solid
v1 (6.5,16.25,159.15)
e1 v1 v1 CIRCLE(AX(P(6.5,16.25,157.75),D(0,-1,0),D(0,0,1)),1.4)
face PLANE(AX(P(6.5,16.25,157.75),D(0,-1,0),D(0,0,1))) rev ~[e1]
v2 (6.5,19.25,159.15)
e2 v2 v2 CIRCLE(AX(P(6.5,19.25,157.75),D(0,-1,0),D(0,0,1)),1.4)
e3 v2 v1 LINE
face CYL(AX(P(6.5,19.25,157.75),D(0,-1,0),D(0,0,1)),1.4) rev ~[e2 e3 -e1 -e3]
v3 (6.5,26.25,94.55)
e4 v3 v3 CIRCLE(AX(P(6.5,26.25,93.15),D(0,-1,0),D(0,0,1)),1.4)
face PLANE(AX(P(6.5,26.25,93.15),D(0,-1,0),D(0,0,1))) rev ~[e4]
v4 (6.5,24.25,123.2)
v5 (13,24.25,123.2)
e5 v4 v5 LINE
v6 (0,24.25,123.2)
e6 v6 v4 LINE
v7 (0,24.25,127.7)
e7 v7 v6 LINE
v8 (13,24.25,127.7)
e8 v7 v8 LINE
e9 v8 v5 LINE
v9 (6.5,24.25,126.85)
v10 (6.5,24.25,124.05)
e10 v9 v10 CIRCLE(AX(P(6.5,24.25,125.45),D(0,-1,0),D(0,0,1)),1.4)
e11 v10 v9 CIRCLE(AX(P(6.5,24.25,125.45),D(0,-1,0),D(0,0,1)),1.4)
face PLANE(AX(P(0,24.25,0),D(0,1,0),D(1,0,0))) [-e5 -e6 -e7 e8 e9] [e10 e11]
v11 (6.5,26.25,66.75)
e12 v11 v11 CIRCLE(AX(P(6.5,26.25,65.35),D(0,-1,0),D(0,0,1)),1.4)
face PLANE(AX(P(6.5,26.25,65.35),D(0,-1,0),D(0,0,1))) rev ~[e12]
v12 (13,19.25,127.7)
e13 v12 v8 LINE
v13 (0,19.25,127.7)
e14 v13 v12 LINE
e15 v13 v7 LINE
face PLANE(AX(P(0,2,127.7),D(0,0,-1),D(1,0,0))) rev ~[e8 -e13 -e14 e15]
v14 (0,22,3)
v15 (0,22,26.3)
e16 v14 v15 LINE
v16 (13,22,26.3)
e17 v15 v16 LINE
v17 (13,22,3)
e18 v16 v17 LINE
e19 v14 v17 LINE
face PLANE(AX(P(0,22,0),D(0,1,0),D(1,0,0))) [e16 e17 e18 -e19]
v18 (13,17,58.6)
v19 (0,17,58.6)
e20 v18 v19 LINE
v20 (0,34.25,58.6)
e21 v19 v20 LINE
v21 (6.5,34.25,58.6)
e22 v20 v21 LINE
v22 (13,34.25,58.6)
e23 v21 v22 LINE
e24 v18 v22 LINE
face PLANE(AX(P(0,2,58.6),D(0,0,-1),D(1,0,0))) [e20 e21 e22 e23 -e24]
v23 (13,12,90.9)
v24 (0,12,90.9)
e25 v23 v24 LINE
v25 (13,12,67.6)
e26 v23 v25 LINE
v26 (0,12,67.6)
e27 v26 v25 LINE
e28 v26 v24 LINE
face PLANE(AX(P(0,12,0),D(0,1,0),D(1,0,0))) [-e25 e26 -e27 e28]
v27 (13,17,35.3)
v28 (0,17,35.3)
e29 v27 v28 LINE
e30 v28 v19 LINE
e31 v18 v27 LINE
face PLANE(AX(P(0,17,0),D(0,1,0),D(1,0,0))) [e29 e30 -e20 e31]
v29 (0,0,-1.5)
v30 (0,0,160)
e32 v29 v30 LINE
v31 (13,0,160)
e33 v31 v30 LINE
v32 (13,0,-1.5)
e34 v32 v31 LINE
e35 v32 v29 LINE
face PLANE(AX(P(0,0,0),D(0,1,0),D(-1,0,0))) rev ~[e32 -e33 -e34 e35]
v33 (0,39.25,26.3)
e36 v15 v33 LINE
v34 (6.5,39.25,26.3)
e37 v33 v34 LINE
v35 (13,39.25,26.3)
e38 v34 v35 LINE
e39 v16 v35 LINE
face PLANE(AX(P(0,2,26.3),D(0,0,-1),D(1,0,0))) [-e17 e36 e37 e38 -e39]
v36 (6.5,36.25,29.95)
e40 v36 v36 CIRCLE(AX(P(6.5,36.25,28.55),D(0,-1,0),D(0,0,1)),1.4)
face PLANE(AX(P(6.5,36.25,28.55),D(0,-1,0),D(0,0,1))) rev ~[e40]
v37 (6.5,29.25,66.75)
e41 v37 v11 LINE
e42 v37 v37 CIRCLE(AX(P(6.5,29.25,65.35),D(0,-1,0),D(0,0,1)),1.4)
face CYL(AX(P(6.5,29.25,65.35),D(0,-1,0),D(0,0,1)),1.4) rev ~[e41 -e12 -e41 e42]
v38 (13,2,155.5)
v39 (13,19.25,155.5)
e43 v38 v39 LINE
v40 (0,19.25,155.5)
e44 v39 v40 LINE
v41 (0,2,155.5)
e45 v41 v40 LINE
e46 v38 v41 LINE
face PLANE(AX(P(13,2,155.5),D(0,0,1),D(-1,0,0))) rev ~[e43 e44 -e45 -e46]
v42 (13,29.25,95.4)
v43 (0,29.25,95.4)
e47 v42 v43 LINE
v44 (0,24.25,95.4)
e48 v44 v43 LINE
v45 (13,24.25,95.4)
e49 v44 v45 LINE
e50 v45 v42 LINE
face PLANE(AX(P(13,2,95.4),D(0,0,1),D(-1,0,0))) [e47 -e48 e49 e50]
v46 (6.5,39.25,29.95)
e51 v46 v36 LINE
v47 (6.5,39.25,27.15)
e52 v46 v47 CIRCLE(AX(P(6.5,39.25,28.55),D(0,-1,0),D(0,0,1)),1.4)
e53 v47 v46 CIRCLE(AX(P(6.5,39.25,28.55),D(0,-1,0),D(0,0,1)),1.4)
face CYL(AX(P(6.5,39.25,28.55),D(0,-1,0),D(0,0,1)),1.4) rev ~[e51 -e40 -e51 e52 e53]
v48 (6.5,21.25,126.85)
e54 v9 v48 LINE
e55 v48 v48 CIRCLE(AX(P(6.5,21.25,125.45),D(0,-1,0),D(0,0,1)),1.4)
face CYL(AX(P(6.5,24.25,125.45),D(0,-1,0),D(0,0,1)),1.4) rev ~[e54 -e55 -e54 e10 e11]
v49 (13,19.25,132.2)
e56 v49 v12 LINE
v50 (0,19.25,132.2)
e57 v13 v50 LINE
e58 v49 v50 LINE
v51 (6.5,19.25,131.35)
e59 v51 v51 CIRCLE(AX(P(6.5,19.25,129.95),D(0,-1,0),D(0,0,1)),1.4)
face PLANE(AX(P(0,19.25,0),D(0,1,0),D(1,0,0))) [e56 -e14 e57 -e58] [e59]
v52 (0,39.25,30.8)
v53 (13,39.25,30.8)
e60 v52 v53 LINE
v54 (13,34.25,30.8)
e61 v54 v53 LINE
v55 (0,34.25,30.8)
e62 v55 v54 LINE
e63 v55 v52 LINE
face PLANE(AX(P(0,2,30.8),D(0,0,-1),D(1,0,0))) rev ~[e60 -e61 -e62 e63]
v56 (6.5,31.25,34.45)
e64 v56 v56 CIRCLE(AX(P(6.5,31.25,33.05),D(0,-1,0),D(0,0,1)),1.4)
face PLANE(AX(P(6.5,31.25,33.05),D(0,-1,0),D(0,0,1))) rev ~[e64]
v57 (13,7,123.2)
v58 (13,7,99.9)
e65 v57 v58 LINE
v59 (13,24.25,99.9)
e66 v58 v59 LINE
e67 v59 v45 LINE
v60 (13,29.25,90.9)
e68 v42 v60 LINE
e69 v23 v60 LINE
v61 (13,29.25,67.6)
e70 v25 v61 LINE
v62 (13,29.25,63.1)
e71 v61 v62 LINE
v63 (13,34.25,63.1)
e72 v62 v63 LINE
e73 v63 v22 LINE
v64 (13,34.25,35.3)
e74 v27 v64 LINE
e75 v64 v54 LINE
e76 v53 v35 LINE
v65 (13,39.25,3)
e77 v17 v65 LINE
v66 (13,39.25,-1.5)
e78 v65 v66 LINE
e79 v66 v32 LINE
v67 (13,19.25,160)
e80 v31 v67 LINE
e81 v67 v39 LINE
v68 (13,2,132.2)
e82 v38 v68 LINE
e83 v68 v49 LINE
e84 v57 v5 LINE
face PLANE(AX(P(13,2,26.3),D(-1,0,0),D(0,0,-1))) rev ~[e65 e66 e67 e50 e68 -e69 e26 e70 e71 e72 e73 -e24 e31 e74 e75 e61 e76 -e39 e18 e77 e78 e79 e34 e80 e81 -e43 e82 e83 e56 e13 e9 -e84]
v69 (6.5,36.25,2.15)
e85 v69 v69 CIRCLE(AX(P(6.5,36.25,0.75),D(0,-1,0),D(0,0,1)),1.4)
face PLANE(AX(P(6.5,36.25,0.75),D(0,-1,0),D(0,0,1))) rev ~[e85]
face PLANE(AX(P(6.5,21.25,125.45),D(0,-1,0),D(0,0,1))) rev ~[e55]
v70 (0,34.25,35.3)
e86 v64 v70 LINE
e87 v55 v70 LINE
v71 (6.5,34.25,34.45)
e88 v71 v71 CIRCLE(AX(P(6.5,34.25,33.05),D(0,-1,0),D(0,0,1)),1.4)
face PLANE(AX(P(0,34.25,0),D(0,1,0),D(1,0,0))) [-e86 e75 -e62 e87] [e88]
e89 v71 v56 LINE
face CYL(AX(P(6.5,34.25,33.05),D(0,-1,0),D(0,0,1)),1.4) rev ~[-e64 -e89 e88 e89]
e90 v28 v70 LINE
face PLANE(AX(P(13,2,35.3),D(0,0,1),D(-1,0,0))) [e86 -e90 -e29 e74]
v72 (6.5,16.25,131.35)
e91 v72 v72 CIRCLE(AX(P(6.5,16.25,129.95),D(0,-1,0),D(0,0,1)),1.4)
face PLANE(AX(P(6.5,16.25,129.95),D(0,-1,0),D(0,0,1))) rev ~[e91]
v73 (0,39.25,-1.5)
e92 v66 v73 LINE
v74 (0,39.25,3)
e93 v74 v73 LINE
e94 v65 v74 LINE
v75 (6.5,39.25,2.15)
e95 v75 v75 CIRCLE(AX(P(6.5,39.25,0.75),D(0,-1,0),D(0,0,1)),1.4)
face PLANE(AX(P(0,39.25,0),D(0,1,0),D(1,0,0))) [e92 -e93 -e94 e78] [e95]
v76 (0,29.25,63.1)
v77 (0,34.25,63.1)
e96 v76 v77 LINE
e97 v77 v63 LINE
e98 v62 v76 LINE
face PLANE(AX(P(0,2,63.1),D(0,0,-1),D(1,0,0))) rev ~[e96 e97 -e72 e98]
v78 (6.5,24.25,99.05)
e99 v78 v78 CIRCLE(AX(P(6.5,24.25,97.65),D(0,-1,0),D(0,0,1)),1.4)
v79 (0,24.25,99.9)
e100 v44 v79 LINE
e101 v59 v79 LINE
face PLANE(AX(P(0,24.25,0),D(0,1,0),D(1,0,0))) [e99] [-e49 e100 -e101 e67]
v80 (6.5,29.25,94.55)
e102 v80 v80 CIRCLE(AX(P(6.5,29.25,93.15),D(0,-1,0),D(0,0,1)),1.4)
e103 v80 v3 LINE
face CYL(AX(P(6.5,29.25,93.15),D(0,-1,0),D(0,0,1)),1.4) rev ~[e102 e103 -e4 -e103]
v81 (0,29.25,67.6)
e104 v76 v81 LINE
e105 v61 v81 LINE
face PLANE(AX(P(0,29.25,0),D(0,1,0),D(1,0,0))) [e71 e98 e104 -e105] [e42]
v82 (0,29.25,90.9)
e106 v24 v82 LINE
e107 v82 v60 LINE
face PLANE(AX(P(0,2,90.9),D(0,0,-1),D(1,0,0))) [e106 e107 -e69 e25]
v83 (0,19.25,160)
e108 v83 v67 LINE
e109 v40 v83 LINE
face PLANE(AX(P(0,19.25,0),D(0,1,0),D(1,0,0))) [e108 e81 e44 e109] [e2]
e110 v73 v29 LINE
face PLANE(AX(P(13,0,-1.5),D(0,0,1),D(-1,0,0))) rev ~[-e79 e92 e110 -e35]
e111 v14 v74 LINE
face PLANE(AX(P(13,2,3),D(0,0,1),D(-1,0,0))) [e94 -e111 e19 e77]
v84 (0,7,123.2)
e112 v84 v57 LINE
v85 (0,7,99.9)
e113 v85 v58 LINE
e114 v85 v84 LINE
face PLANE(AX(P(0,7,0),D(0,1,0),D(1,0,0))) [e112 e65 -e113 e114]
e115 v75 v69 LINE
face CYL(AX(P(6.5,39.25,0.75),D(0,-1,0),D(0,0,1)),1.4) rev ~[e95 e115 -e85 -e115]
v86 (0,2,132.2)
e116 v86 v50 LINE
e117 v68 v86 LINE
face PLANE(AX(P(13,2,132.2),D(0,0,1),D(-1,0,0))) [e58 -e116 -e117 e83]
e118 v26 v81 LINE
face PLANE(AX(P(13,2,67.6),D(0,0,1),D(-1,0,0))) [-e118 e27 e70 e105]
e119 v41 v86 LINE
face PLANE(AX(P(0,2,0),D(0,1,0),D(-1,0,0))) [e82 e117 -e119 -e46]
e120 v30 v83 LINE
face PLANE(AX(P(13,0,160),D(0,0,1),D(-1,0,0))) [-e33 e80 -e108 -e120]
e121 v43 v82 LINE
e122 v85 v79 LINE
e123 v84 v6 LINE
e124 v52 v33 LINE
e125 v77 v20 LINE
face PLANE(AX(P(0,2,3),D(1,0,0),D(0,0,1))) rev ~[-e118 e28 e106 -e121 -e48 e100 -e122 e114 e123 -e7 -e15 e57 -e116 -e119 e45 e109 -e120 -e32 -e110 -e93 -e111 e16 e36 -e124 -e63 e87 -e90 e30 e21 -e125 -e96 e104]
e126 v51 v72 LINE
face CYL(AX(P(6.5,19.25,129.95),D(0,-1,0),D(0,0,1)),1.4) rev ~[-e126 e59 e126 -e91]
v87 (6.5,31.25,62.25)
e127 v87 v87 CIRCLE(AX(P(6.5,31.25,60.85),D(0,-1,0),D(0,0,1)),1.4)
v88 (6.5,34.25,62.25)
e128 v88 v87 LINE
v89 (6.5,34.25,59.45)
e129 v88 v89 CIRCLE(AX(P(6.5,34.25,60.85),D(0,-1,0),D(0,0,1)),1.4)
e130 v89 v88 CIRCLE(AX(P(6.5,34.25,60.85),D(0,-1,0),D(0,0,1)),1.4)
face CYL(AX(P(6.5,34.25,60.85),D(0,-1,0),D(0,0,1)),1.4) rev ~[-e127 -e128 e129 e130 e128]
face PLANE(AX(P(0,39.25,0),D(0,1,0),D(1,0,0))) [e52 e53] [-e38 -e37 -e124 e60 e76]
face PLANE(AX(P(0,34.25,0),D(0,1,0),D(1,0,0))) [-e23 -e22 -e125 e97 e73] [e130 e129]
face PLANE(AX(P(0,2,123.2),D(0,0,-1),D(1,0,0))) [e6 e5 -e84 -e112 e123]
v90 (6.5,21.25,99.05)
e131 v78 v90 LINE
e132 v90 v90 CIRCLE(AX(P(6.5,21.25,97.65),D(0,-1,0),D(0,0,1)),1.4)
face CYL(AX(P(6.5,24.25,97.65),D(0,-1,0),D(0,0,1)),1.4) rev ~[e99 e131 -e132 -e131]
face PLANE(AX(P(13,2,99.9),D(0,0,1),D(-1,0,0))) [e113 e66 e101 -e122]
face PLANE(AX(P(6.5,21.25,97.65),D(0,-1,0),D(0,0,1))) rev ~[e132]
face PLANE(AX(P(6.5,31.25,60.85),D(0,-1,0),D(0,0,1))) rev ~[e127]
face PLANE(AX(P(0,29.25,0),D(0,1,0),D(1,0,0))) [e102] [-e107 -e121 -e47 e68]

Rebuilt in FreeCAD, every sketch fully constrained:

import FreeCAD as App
import Part
import Sketcher
from FreeCAD import Vector
Q = App.Units.Quantity


def add_polygon(sketch, points):
    """Adds a closed chain of lines whose ends are joined by coincident constraints."""
    first, n = sketch.GeometryCount, len(points)
    for a, b in zip(points, points[1:] + points[:1]):
        sketch.addGeometry(Part.LineSegment(App.Vector(*a, 0), App.Vector(*b, 0)), False)
    for i in range(n):
        sketch.addConstraint(Sketcher.Constraint("Coincident", first + i, 2, first + (i + 1) % n, 1))

doc = App.newDocument("Part")
params = doc.addObject("Spreadsheet::Sheet", "Params")
for row, (alias, value) in enumerate([
    ("sketch1_width", "13 mm"),
    ("pad1_length", "2 mm"),
    ("sketch2_width", "13 mm"),
    ("sketch2_height", "4.5 mm"),
    ("pad2_length", "17.25 mm"),
    ("sketch3_height", "4.5 mm"),
    ("sketch3_width", "13 mm"),
    ("pad3_length", "22.25 mm"),
    ("sketch4_height", "4.5 mm"),
    ("sketch4_width", "13 mm"),
    ("pad4_length", "27.25 mm"),
    ("sketch5_height", "4.5 mm"),
    ("sketch5_width", "13 mm"),
    ("pad5_length", "32.25 mm"),
    ("sketch6_height", "4.5 mm"),
    ("sketch6_width", "13 mm"),
    ("pad6_length", "37.25 mm"),
    ("sketch7_width", "13 mm"),
    ("sketch7_height", "23.3 mm"),
    ("pad7_length", "5 mm"),
    ("sketch8_width", "13 mm"),
    ("sketch8_height", "23.3 mm"),
    ("pad8_length", "10 mm"),
    ("sketch9_width", "13 mm"),
    ("sketch9_height", "23.3 mm"),
    ("pad9_length", "15 mm"),
    ("sketch10_width", "13 mm"),
    ("sketch10_height", "23.3 mm"),
    ("pad10_length", "20 mm"),
    ("sketch11_diameter", "2.8 mm"),
    ("hole_diameter", "2.8 mm"),
    ("hole_depth", "3 mm"),
    ("sketch12_diameter", "2.8 mm"),
    ("hole2_diameter", "2.8 mm"),
    ("hole2_depth", "3 mm"),
    ("sketch13_diameter", "2.8 mm"),
    ("hole3_diameter", "2.8 mm"),
    ("hole3_depth", "3 mm"),
    ("sketch14_diameter", "2.8 mm"),
    ("hole4_diameter", "2.8 mm"),
    ("hole4_depth", "3 mm"),
    ("sketch15_diameter", "2.8 mm"),
    ("hole5_diameter", "2.8 mm"),
    ("hole5_depth", "3 mm"),
], start=1):
    params.set(f"A{row}", alias)
    params.set(f"B{row}", "=" + value)
    params.setAlias(f"B{row}", alias)

body = doc.addObject("PartDesign::Body", "Body")

# Sketch on XZ plane
sketch1 = doc.addObject("Sketcher::SketchObject", "Sketch")
body.addObject(sketch1)
sketch1.AttachmentSupport = (doc.XZ_Plane, [""])
sketch1.MapMode = "FlatFace"
add_polygon(sketch1, [(0, -1.5), (0, 160), (13, 160), (13, -1.5)])  # lines 0-3
sketch1.addConstraint([
    Sketcher.Constraint("Vertical", 0),
    Sketcher.Constraint("Horizontal", 1),
    Sketcher.Constraint("Vertical", 2),
    Sketcher.Constraint("Horizontal", 3),
    Sketcher.Constraint("PointOnObject", 0, 2, -2),
    Sketcher.Constraint("DistanceX", 1, 1, 1, 2, Q("13 mm")),
    Sketcher.Constraint("DistanceY", -1, 1, 0, 2, Q("160 mm")),
    Sketcher.Constraint("DistanceY", 2, 2, -1, 1, Q("1.5 mm")),
])
sketch1.setExpression("Constraints[9]", "Params.sketch1_width")
pad1 = doc.addObject("PartDesign::Pad", "Pad")
body.addObject(pad1)
pad1.Profile = sketch1
pad1.setExpression("Length", "Params.pad1_length")
pad1.Reversed = True

# Sketch on XZ plane
sketch2 = doc.addObject("Sketcher::SketchObject", "Sketch001")
body.addObject(sketch2)
sketch2.AttachmentSupport = (doc.XZ_Plane, [""])
sketch2.MapMode = "FlatFace"
sketch2.AttachmentOffset = App.Placement(Vector(0, 0, -2), App.Rotation())
add_polygon(sketch2, [(13, 127.7), (0, 127.7), (0, 132.2), (13, 132.2)])  # lines 0-3
add_polygon(sketch2, [(13, 155.5), (0, 155.5), (0, 160), (13, 160)])  # lines 4-7
sketch2.addConstraint([
    Sketcher.Constraint("Horizontal", 0),
    Sketcher.Constraint("Vertical", 1),
    Sketcher.Constraint("Horizontal", 2),
    Sketcher.Constraint("Vertical", 3),
    Sketcher.Constraint("Horizontal", 4),
    Sketcher.Constraint("Vertical", 5),
    Sketcher.Constraint("Horizontal", 6),
    Sketcher.Constraint("Vertical", 7),
    Sketcher.Constraint("PointOnObject", 0, 2, -2),
    Sketcher.Constraint("PointOnObject", 4, 2, -2),
    Sketcher.Constraint("Vertical", 3, 2, 6, 2),
    Sketcher.Constraint("Equal", 3, 5),
    Sketcher.Constraint("DistanceX", 0, 2, 0, 1, Q("13 mm")),
    Sketcher.Constraint("DistanceY", 1, 1, 1, 2, Q("4.5 mm")),
    Sketcher.Constraint("DistanceY", -1, 1, 5, 2, Q("160 mm")),
    Sketcher.Constraint("DistanceY", -1, 1, 0, 2, Q("127.7 mm")),
])
sketch2.setExpression("Constraints[20]", "Params.sketch2_width")
sketch2.setExpression("Constraints[21]", "Params.sketch2_height")
pad2 = doc.addObject("PartDesign::Pad", "Pad001")
body.addObject(pad2)
pad2.Profile = sketch2
pad2.setExpression("Length", "Params.pad2_length")
pad2.Reversed = True

# Sketch on XZ plane
sketch3 = doc.addObject("Sketcher::SketchObject", "Sketch002")
body.addObject(sketch3)
sketch3.AttachmentSupport = (doc.XZ_Plane, [""])
sketch3.MapMode = "FlatFace"
sketch3.AttachmentOffset = App.Placement(Vector(0, 0, -2), App.Rotation())
add_polygon(sketch3, [(0, 123.2), (0, 127.7), (13, 127.7), (13, 123.2), (6.5, 123.2)])  # lines 0-4
add_polygon(sketch3, [(0, 95.4), (0, 99.9), (13, 99.9), (13, 95.4)])  # lines 5-8
sketch3.addConstraint([
    Sketcher.Constraint("Vertical", 0),
    Sketcher.Constraint("Horizontal", 1),
    Sketcher.Constraint("Vertical", 2),
    Sketcher.Constraint("Horizontal", 3),
    Sketcher.Constraint("Horizontal", 4),
    Sketcher.Constraint("Vertical", 5),
    Sketcher.Constraint("Horizontal", 6),
    Sketcher.Constraint("Vertical", 7),
    Sketcher.Constraint("Horizontal", 8),
    Sketcher.Constraint("PointOnObject", 0, 2, -2),
    Sketcher.Constraint("PointOnObject", 5, 2, -2),
    Sketcher.Constraint("Vertical", 2, 2, 6, 2),
    Sketcher.Constraint("Equal", 3, 4),
    Sketcher.Constraint("Equal", 2, 5),
    Sketcher.Constraint("DistanceY", 0, 1, 0, 2, Q("4.5 mm")),
    Sketcher.Constraint("DistanceX", 1, 1, 1, 2, Q("13 mm")),
    Sketcher.Constraint("DistanceY", -1, 1, 0, 2, Q("127.7 mm")),
    Sketcher.Constraint("DistanceY", -1, 1, 5, 2, Q("99.9 mm")),
])
sketch3.setExpression("Constraints[23]", "Params.sketch3_height")
sketch3.setExpression("Constraints[24]", "Params.sketch3_width")
pad3 = doc.addObject("PartDesign::Pad", "Pad002")
body.addObject(pad3)
pad3.Profile = sketch3
pad3.setExpression("Length", "Params.pad3_length")
pad3.Reversed = True

# Sketch on XZ plane
sketch4 = doc.addObject("Sketcher::SketchObject", "Sketch003")
body.addObject(sketch4)
sketch4.AttachmentSupport = (doc.XZ_Plane, [""])
sketch4.MapMode = "FlatFace"
sketch4.AttachmentOffset = App.Placement(Vector(0, 0, -2), App.Rotation())
add_polygon(sketch4, [(0, 95.4), (13, 95.4), (13, 90.9), (0, 90.9)])  # lines 0-3
add_polygon(sketch4, [(0, 67.6), (13, 67.6), (13, 63.1), (0, 63.1)])  # lines 4-7
sketch4.addConstraint([
    Sketcher.Constraint("Horizontal", 0),
    Sketcher.Constraint("Vertical", 1),
    Sketcher.Constraint("Horizontal", 2),
    Sketcher.Constraint("Vertical", 3),
    Sketcher.Constraint("Horizontal", 4),
    Sketcher.Constraint("Vertical", 5),
    Sketcher.Constraint("Horizontal", 6),
    Sketcher.Constraint("Vertical", 7),
    Sketcher.Constraint("PointOnObject", 2, 2, -2),
    Sketcher.Constraint("PointOnObject", 6, 2, -2),
    Sketcher.Constraint("Vertical", 1, 2, 4, 2),
    Sketcher.Constraint("Equal", 3, 5),
    Sketcher.Constraint("DistanceY", 1, 2, 1, 1, Q("4.5 mm")),
    Sketcher.Constraint("DistanceX", 0, 1, 0, 2, Q("13 mm")),
    Sketcher.Constraint("DistanceY", -1, 1, 0, 2, Q("95.4 mm")),
    Sketcher.Constraint("DistanceY", -1, 1, 4, 2, Q("67.6 mm")),
])
sketch4.setExpression("Constraints[20]", "Params.sketch4_height")
sketch4.setExpression("Constraints[21]", "Params.sketch4_width")
pad4 = doc.addObject("PartDesign::Pad", "Pad003")
body.addObject(pad4)
pad4.Profile = sketch4
pad4.setExpression("Length", "Params.pad4_length")
pad4.Reversed = True

# Sketch on XZ plane
sketch5 = doc.addObject("Sketcher::SketchObject", "Sketch004")
body.addObject(sketch5)
sketch5.AttachmentSupport = (doc.XZ_Plane, [""])
sketch5.MapMode = "FlatFace"
sketch5.AttachmentOffset = App.Placement(Vector(0, 0, -2), App.Rotation())
add_polygon(sketch5, [(0, 58.6), (0, 63.1), (13, 63.1), (13, 58.6), (6.5, 58.6)])  # lines 0-4
add_polygon(sketch5, [(0, 30.8), (0, 35.3), (13, 35.3), (13, 30.8)])  # lines 5-8
sketch5.addConstraint([
    Sketcher.Constraint("Vertical", 0),
    Sketcher.Constraint("Horizontal", 1),
    Sketcher.Constraint("Vertical", 2),
    Sketcher.Constraint("Horizontal", 3),
    Sketcher.Constraint("Horizontal", 4),
    Sketcher.Constraint("Vertical", 5),
    Sketcher.Constraint("Horizontal", 6),
    Sketcher.Constraint("Vertical", 7),
    Sketcher.Constraint("Horizontal", 8),
    Sketcher.Constraint("PointOnObject", 0, 2, -2),
    Sketcher.Constraint("PointOnObject", 5, 2, -2),
    Sketcher.Constraint("Vertical", 2, 2, 6, 2),
    Sketcher.Constraint("Equal", 3, 4),
    Sketcher.Constraint("Equal", 2, 5),
    Sketcher.Constraint("DistanceY", 0, 1, 0, 2, Q("4.5 mm")),
    Sketcher.Constraint("DistanceX", 1, 1, 1, 2, Q("13 mm")),
    Sketcher.Constraint("DistanceY", -1, 1, 0, 2, Q("63.1 mm")),
    Sketcher.Constraint("DistanceY", -1, 1, 5, 2, Q("35.3 mm")),
])
sketch5.setExpression("Constraints[23]", "Params.sketch5_height")
sketch5.setExpression("Constraints[24]", "Params.sketch5_width")
pad5 = doc.addObject("PartDesign::Pad", "Pad004")
body.addObject(pad5)
pad5.Profile = sketch5
pad5.setExpression("Length", "Params.pad5_length")
pad5.Reversed = True

# Sketch on XZ plane
sketch6 = doc.addObject("Sketcher::SketchObject", "Sketch005")
body.addObject(sketch6)
sketch6.AttachmentSupport = (doc.XZ_Plane, [""])
sketch6.MapMode = "FlatFace"
sketch6.AttachmentOffset = App.Placement(Vector(0, 0, -2), App.Rotation())
add_polygon(sketch6, [(0, 26.3), (0, 30.8), (13, 30.8), (13, 26.3), (6.5, 26.3)])  # lines 0-4
add_polygon(sketch6, [(0, 3), (13, 3), (13, -1.5), (0, -1.5)])  # lines 5-8
sketch6.addConstraint([
    Sketcher.Constraint("Vertical", 0),
    Sketcher.Constraint("Horizontal", 1),
    Sketcher.Constraint("Vertical", 2),
    Sketcher.Constraint("Horizontal", 3),
    Sketcher.Constraint("Horizontal", 4),
    Sketcher.Constraint("Horizontal", 5),
    Sketcher.Constraint("Vertical", 6),
    Sketcher.Constraint("Horizontal", 7),
    Sketcher.Constraint("Vertical", 8),
    Sketcher.Constraint("PointOnObject", 0, 2, -2),
    Sketcher.Constraint("PointOnObject", 7, 2, -2),
    Sketcher.Constraint("Vertical", 2, 2, 5, 2),
    Sketcher.Constraint("Equal", 3, 4),
    Sketcher.Constraint("Equal", 2, 6),
    Sketcher.Constraint("DistanceY", 0, 1, 0, 2, Q("4.5 mm")),
    Sketcher.Constraint("DistanceX", 1, 1, 1, 2, Q("13 mm")),
    Sketcher.Constraint("DistanceY", -1, 1, 5, 2, Q("3 mm")),
    Sketcher.Constraint("DistanceY", -1, 1, 0, 2, Q("30.8 mm")),
])
sketch6.setExpression("Constraints[23]", "Params.sketch6_height")
sketch6.setExpression("Constraints[24]", "Params.sketch6_width")
pad6 = doc.addObject("PartDesign::Pad", "Pad005")
body.addObject(pad6)
pad6.Profile = sketch6
pad6.setExpression("Length", "Params.pad6_length")
pad6.Reversed = True

# Sketch on XZ plane
sketch7 = doc.addObject("Sketcher::SketchObject", "Sketch006")
body.addObject(sketch7)
sketch7.AttachmentSupport = (doc.XZ_Plane, [""])
sketch7.MapMode = "FlatFace"
sketch7.AttachmentOffset = App.Placement(Vector(0, 0, -2), App.Rotation())
add_polygon(sketch7, [(0, 99.9), (0, 123.2), (13, 123.2), (13, 99.9)])  # lines 0-3
sketch7.addConstraint([
    Sketcher.Constraint("Vertical", 0),
    Sketcher.Constraint("Horizontal", 1),
    Sketcher.Constraint("Vertical", 2),
    Sketcher.Constraint("Horizontal", 3),
    Sketcher.Constraint("PointOnObject", 0, 2, -2),
    Sketcher.Constraint("DistanceX", 1, 1, 1, 2, Q("13 mm")),
    Sketcher.Constraint("DistanceY", 0, 1, 0, 2, Q("23.3 mm")),
    Sketcher.Constraint("DistanceY", -1, 1, 0, 2, Q("123.2 mm")),
])
sketch7.setExpression("Constraints[9]", "Params.sketch7_width")
sketch7.setExpression("Constraints[10]", "Params.sketch7_height")
pad7 = doc.addObject("PartDesign::Pad", "Pad006")
body.addObject(pad7)
pad7.Profile = sketch7
pad7.setExpression("Length", "Params.pad7_length")
pad7.Reversed = True

# Sketch on XZ plane
sketch8 = doc.addObject("Sketcher::SketchObject", "Sketch007")
body.addObject(sketch8)
sketch8.AttachmentSupport = (doc.XZ_Plane, [""])
sketch8.MapMode = "FlatFace"
sketch8.AttachmentOffset = App.Placement(Vector(0, 0, -2), App.Rotation())
add_polygon(sketch8, [(0, 90.9), (13, 90.9), (13, 67.6), (0, 67.6)])  # lines 0-3
sketch8.addConstraint([
    Sketcher.Constraint("Horizontal", 0),
    Sketcher.Constraint("Vertical", 1),
    Sketcher.Constraint("Horizontal", 2),
    Sketcher.Constraint("Vertical", 3),
    Sketcher.Constraint("PointOnObject", 2, 2, -2),
    Sketcher.Constraint("DistanceX", 0, 1, 0, 2, Q("13 mm")),
    Sketcher.Constraint("DistanceY", 1, 2, 1, 1, Q("23.3 mm")),
    Sketcher.Constraint("DistanceY", -1, 1, 0, 2, Q("90.9 mm")),
])
sketch8.setExpression("Constraints[9]", "Params.sketch8_width")
sketch8.setExpression("Constraints[10]", "Params.sketch8_height")
pad8 = doc.addObject("PartDesign::Pad", "Pad007")
body.addObject(pad8)
pad8.Profile = sketch8
pad8.setExpression("Length", "Params.pad8_length")
pad8.Reversed = True

# Sketch on XZ plane
sketch9 = doc.addObject("Sketcher::SketchObject", "Sketch008")
body.addObject(sketch9)
sketch9.AttachmentSupport = (doc.XZ_Plane, [""])
sketch9.MapMode = "FlatFace"
sketch9.AttachmentOffset = App.Placement(Vector(0, 0, -2), App.Rotation())
add_polygon(sketch9, [(0, 58.6), (13, 58.6), (13, 35.3), (0, 35.3)])  # lines 0-3
sketch9.addConstraint([
    Sketcher.Constraint("Horizontal", 0),
    Sketcher.Constraint("Vertical", 1),
    Sketcher.Constraint("Horizontal", 2),
    Sketcher.Constraint("Vertical", 3),
    Sketcher.Constraint("PointOnObject", 2, 2, -2),
    Sketcher.Constraint("DistanceX", 0, 1, 0, 2, Q("13 mm")),
    Sketcher.Constraint("DistanceY", 1, 2, 1, 1, Q("23.3 mm")),
    Sketcher.Constraint("DistanceY", -1, 1, 0, 2, Q("58.6 mm")),
])
sketch9.setExpression("Constraints[9]", "Params.sketch9_width")
sketch9.setExpression("Constraints[10]", "Params.sketch9_height")
pad9 = doc.addObject("PartDesign::Pad", "Pad008")
body.addObject(pad9)
pad9.Profile = sketch9
pad9.setExpression("Length", "Params.pad9_length")
pad9.Reversed = True

# Sketch on XZ plane
sketch10 = doc.addObject("Sketcher::SketchObject", "Sketch009")
body.addObject(sketch10)
sketch10.AttachmentSupport = (doc.XZ_Plane, [""])
sketch10.MapMode = "FlatFace"
sketch10.AttachmentOffset = App.Placement(Vector(0, 0, -2), App.Rotation())
add_polygon(sketch10, [(0, 3), (0, 26.3), (13, 26.3), (13, 3)])  # lines 0-3
sketch10.addConstraint([
    Sketcher.Constraint("Vertical", 0),
    Sketcher.Constraint("Horizontal", 1),
    Sketcher.Constraint("Vertical", 2),
    Sketcher.Constraint("Horizontal", 3),
    Sketcher.Constraint("PointOnObject", 0, 2, -2),
    Sketcher.Constraint("DistanceX", 1, 1, 1, 2, Q("13 mm")),
    Sketcher.Constraint("DistanceY", 0, 1, 0, 2, Q("23.3 mm")),
    Sketcher.Constraint("DistanceY", -1, 1, 2, 2, Q("3 mm")),
])
sketch10.setExpression("Constraints[9]", "Params.sketch10_width")
sketch10.setExpression("Constraints[10]", "Params.sketch10_height")
pad10 = doc.addObject("PartDesign::Pad", "Pad009")
body.addObject(pad10)
pad10.Profile = sketch10
pad10.setExpression("Length", "Params.pad10_length")
pad10.Reversed = True

# Sketch on XZ plane
sketch11 = doc.addObject("Sketcher::SketchObject", "Sketch010")
body.addObject(sketch11)
sketch11.AttachmentSupport = (doc.XZ_Plane, [""])
sketch11.MapMode = "FlatFace"
sketch11.AttachmentOffset = App.Placement(Vector(0, 0, -19.25), App.Rotation())
sketch11.addGeometry([
    Part.Circle(Vector(6.5, 129.95, 0), Vector(0, 0, 1), 1.4),
    Part.Circle(Vector(6.5, 157.75, 0), Vector(0, 0, 1), 1.4),
], False)
sketch11.addConstraint([
    Sketcher.Constraint("Equal", 0, 1),
    Sketcher.Constraint("Vertical", 0, 3, 1, 3),
    Sketcher.Constraint("Diameter", 0, Q("2.8 mm")),
    Sketcher.Constraint("DistanceX", -1, 1, 0, 3, Q("6.5 mm")),
    Sketcher.Constraint("DistanceY", 0, 3, 1, 3, Q("27.8 mm")),
    Sketcher.Constraint("DistanceY", -1, 1, 0, 3, Q("129.95 mm")),
])
sketch11.setExpression("Constraints[2]", "Params.sketch11_diameter")
doc.recompute()
hole = doc.addObject("PartDesign::Hole", "Hole")
body.addObject(hole)
hole.Profile = sketch11
hole.ThreadType = "None"
hole.setExpression("Diameter", "Params.hole_diameter")
hole.DepthType = "Dimension"
hole.setExpression("Depth", "Params.hole_depth")
hole.DrillPoint = "Flat"
hole.Reversed = True

# Sketch on XZ plane
sketch12 = doc.addObject("Sketcher::SketchObject", "Sketch011")
body.addObject(sketch12)
sketch12.AttachmentSupport = (doc.XZ_Plane, [""])
sketch12.MapMode = "FlatFace"
sketch12.AttachmentOffset = App.Placement(Vector(0, 0, -24.25), App.Rotation())
sketch12.addGeometry([
    Part.Circle(Vector(6.5, 125.45, 0), Vector(0, 0, 1), 1.4),
    Part.Circle(Vector(6.5, 97.65, 0), Vector(0, 0, 1), 1.4),
], False)
sketch12.addConstraint([
    Sketcher.Constraint("Equal", 0, 1),
    Sketcher.Constraint("Vertical", 0, 3, 1, 3),
    Sketcher.Constraint("Diameter", 0, Q("2.8 mm")),
    Sketcher.Constraint("DistanceX", -1, 1, 0, 3, Q("6.5 mm")),
    Sketcher.Constraint("DistanceY", 1, 3, 0, 3, Q("27.8 mm")),
    Sketcher.Constraint("DistanceY", -1, 1, 0, 3, Q("125.45 mm")),
])
sketch12.setExpression("Constraints[2]", "Params.sketch12_diameter")
doc.recompute()
hole2 = doc.addObject("PartDesign::Hole", "Hole001")
body.addObject(hole2)
hole2.Profile = sketch12
hole2.ThreadType = "None"
hole2.setExpression("Diameter", "Params.hole2_diameter")
hole2.DepthType = "Dimension"
hole2.setExpression("Depth", "Params.hole2_depth")
hole2.DrillPoint = "Flat"
hole2.Reversed = True

# Sketch on XZ plane
sketch13 = doc.addObject("Sketcher::SketchObject", "Sketch012")
body.addObject(sketch13)
sketch13.AttachmentSupport = (doc.XZ_Plane, [""])
sketch13.MapMode = "FlatFace"
sketch13.AttachmentOffset = App.Placement(Vector(0, 0, -29.25), App.Rotation())
sketch13.addGeometry([
    Part.Circle(Vector(6.5, 93.15, 0), Vector(0, 0, 1), 1.4),
    Part.Circle(Vector(6.5, 65.35, 0), Vector(0, 0, 1), 1.4),
], False)
sketch13.addConstraint([
    Sketcher.Constraint("Equal", 0, 1),
    Sketcher.Constraint("Vertical", 0, 3, 1, 3),
    Sketcher.Constraint("Diameter", 0, Q("2.8 mm")),
    Sketcher.Constraint("DistanceX", -1, 1, 0, 3, Q("6.5 mm")),
    Sketcher.Constraint("DistanceY", 1, 3, 0, 3, Q("27.8 mm")),
    Sketcher.Constraint("DistanceY", -1, 1, 0, 3, Q("93.15 mm")),
])
sketch13.setExpression("Constraints[2]", "Params.sketch13_diameter")
doc.recompute()
hole3 = doc.addObject("PartDesign::Hole", "Hole002")
body.addObject(hole3)
hole3.Profile = sketch13
hole3.ThreadType = "None"
hole3.setExpression("Diameter", "Params.hole3_diameter")
hole3.DepthType = "Dimension"
hole3.setExpression("Depth", "Params.hole3_depth")
hole3.DrillPoint = "Flat"
hole3.Reversed = True

# Sketch on XZ plane
sketch14 = doc.addObject("Sketcher::SketchObject", "Sketch013")
body.addObject(sketch14)
sketch14.AttachmentSupport = (doc.XZ_Plane, [""])
sketch14.MapMode = "FlatFace"
sketch14.AttachmentOffset = App.Placement(Vector(0, 0, -34.25), App.Rotation())
sketch14.addGeometry([
    Part.Circle(Vector(6.5, 60.85, 0), Vector(0, 0, 1), 1.4),
    Part.Circle(Vector(6.5, 33.05, 0), Vector(0, 0, 1), 1.4),
], False)
sketch14.addConstraint([
    Sketcher.Constraint("Equal", 0, 1),
    Sketcher.Constraint("Vertical", 0, 3, 1, 3),
    Sketcher.Constraint("Diameter", 0, Q("2.8 mm")),
    Sketcher.Constraint("DistanceX", -1, 1, 0, 3, Q("6.5 mm")),
    Sketcher.Constraint("DistanceY", 1, 3, 0, 3, Q("27.8 mm")),
    Sketcher.Constraint("DistanceY", -1, 1, 0, 3, Q("60.85 mm")),
])
sketch14.setExpression("Constraints[2]", "Params.sketch14_diameter")
doc.recompute()
hole4 = doc.addObject("PartDesign::Hole", "Hole003")
body.addObject(hole4)
hole4.Profile = sketch14
hole4.ThreadType = "None"
hole4.setExpression("Diameter", "Params.hole4_diameter")
hole4.DepthType = "Dimension"
hole4.setExpression("Depth", "Params.hole4_depth")
hole4.DrillPoint = "Flat"
hole4.Reversed = True

# Sketch on XZ plane
sketch15 = doc.addObject("Sketcher::SketchObject", "Sketch014")
body.addObject(sketch15)
sketch15.AttachmentSupport = (doc.XZ_Plane, [""])
sketch15.MapMode = "FlatFace"
sketch15.AttachmentOffset = App.Placement(Vector(0, 0, -39.25), App.Rotation())
sketch15.addGeometry([
    Part.Circle(Vector(6.5, 28.55, 0), Vector(0, 0, 1), 1.4),
    Part.Circle(Vector(6.5, 0.75, 0), Vector(0, 0, 1), 1.4),
], False)
sketch15.addConstraint([
    Sketcher.Constraint("Equal", 0, 1),
    Sketcher.Constraint("Vertical", 0, 3, 1, 3),
    Sketcher.Constraint("Diameter", 0, Q("2.8 mm")),
    Sketcher.Constraint("DistanceX", -1, 1, 0, 3, Q("6.5 mm")),
    Sketcher.Constraint("DistanceY", 1, 3, 0, 3, Q("27.8 mm")),
    Sketcher.Constraint("DistanceY", -1, 1, 0, 3, Q("28.55 mm")),
])
sketch15.setExpression("Constraints[2]", "Params.sketch15_diameter")
doc.recompute()
hole5 = doc.addObject("PartDesign::Hole", "Hole004")
body.addObject(hole5)
hole5.Profile = sketch15
hole5.ThreadType = "None"
hole5.setExpression("Diameter", "Params.hole5_diameter")
hole5.DepthType = "Dimension"
hole5.setExpression("Depth", "Params.hole5_depth")
hole5.DrillPoint = "Flat"
hole5.Reversed = True

doc.recompute()
